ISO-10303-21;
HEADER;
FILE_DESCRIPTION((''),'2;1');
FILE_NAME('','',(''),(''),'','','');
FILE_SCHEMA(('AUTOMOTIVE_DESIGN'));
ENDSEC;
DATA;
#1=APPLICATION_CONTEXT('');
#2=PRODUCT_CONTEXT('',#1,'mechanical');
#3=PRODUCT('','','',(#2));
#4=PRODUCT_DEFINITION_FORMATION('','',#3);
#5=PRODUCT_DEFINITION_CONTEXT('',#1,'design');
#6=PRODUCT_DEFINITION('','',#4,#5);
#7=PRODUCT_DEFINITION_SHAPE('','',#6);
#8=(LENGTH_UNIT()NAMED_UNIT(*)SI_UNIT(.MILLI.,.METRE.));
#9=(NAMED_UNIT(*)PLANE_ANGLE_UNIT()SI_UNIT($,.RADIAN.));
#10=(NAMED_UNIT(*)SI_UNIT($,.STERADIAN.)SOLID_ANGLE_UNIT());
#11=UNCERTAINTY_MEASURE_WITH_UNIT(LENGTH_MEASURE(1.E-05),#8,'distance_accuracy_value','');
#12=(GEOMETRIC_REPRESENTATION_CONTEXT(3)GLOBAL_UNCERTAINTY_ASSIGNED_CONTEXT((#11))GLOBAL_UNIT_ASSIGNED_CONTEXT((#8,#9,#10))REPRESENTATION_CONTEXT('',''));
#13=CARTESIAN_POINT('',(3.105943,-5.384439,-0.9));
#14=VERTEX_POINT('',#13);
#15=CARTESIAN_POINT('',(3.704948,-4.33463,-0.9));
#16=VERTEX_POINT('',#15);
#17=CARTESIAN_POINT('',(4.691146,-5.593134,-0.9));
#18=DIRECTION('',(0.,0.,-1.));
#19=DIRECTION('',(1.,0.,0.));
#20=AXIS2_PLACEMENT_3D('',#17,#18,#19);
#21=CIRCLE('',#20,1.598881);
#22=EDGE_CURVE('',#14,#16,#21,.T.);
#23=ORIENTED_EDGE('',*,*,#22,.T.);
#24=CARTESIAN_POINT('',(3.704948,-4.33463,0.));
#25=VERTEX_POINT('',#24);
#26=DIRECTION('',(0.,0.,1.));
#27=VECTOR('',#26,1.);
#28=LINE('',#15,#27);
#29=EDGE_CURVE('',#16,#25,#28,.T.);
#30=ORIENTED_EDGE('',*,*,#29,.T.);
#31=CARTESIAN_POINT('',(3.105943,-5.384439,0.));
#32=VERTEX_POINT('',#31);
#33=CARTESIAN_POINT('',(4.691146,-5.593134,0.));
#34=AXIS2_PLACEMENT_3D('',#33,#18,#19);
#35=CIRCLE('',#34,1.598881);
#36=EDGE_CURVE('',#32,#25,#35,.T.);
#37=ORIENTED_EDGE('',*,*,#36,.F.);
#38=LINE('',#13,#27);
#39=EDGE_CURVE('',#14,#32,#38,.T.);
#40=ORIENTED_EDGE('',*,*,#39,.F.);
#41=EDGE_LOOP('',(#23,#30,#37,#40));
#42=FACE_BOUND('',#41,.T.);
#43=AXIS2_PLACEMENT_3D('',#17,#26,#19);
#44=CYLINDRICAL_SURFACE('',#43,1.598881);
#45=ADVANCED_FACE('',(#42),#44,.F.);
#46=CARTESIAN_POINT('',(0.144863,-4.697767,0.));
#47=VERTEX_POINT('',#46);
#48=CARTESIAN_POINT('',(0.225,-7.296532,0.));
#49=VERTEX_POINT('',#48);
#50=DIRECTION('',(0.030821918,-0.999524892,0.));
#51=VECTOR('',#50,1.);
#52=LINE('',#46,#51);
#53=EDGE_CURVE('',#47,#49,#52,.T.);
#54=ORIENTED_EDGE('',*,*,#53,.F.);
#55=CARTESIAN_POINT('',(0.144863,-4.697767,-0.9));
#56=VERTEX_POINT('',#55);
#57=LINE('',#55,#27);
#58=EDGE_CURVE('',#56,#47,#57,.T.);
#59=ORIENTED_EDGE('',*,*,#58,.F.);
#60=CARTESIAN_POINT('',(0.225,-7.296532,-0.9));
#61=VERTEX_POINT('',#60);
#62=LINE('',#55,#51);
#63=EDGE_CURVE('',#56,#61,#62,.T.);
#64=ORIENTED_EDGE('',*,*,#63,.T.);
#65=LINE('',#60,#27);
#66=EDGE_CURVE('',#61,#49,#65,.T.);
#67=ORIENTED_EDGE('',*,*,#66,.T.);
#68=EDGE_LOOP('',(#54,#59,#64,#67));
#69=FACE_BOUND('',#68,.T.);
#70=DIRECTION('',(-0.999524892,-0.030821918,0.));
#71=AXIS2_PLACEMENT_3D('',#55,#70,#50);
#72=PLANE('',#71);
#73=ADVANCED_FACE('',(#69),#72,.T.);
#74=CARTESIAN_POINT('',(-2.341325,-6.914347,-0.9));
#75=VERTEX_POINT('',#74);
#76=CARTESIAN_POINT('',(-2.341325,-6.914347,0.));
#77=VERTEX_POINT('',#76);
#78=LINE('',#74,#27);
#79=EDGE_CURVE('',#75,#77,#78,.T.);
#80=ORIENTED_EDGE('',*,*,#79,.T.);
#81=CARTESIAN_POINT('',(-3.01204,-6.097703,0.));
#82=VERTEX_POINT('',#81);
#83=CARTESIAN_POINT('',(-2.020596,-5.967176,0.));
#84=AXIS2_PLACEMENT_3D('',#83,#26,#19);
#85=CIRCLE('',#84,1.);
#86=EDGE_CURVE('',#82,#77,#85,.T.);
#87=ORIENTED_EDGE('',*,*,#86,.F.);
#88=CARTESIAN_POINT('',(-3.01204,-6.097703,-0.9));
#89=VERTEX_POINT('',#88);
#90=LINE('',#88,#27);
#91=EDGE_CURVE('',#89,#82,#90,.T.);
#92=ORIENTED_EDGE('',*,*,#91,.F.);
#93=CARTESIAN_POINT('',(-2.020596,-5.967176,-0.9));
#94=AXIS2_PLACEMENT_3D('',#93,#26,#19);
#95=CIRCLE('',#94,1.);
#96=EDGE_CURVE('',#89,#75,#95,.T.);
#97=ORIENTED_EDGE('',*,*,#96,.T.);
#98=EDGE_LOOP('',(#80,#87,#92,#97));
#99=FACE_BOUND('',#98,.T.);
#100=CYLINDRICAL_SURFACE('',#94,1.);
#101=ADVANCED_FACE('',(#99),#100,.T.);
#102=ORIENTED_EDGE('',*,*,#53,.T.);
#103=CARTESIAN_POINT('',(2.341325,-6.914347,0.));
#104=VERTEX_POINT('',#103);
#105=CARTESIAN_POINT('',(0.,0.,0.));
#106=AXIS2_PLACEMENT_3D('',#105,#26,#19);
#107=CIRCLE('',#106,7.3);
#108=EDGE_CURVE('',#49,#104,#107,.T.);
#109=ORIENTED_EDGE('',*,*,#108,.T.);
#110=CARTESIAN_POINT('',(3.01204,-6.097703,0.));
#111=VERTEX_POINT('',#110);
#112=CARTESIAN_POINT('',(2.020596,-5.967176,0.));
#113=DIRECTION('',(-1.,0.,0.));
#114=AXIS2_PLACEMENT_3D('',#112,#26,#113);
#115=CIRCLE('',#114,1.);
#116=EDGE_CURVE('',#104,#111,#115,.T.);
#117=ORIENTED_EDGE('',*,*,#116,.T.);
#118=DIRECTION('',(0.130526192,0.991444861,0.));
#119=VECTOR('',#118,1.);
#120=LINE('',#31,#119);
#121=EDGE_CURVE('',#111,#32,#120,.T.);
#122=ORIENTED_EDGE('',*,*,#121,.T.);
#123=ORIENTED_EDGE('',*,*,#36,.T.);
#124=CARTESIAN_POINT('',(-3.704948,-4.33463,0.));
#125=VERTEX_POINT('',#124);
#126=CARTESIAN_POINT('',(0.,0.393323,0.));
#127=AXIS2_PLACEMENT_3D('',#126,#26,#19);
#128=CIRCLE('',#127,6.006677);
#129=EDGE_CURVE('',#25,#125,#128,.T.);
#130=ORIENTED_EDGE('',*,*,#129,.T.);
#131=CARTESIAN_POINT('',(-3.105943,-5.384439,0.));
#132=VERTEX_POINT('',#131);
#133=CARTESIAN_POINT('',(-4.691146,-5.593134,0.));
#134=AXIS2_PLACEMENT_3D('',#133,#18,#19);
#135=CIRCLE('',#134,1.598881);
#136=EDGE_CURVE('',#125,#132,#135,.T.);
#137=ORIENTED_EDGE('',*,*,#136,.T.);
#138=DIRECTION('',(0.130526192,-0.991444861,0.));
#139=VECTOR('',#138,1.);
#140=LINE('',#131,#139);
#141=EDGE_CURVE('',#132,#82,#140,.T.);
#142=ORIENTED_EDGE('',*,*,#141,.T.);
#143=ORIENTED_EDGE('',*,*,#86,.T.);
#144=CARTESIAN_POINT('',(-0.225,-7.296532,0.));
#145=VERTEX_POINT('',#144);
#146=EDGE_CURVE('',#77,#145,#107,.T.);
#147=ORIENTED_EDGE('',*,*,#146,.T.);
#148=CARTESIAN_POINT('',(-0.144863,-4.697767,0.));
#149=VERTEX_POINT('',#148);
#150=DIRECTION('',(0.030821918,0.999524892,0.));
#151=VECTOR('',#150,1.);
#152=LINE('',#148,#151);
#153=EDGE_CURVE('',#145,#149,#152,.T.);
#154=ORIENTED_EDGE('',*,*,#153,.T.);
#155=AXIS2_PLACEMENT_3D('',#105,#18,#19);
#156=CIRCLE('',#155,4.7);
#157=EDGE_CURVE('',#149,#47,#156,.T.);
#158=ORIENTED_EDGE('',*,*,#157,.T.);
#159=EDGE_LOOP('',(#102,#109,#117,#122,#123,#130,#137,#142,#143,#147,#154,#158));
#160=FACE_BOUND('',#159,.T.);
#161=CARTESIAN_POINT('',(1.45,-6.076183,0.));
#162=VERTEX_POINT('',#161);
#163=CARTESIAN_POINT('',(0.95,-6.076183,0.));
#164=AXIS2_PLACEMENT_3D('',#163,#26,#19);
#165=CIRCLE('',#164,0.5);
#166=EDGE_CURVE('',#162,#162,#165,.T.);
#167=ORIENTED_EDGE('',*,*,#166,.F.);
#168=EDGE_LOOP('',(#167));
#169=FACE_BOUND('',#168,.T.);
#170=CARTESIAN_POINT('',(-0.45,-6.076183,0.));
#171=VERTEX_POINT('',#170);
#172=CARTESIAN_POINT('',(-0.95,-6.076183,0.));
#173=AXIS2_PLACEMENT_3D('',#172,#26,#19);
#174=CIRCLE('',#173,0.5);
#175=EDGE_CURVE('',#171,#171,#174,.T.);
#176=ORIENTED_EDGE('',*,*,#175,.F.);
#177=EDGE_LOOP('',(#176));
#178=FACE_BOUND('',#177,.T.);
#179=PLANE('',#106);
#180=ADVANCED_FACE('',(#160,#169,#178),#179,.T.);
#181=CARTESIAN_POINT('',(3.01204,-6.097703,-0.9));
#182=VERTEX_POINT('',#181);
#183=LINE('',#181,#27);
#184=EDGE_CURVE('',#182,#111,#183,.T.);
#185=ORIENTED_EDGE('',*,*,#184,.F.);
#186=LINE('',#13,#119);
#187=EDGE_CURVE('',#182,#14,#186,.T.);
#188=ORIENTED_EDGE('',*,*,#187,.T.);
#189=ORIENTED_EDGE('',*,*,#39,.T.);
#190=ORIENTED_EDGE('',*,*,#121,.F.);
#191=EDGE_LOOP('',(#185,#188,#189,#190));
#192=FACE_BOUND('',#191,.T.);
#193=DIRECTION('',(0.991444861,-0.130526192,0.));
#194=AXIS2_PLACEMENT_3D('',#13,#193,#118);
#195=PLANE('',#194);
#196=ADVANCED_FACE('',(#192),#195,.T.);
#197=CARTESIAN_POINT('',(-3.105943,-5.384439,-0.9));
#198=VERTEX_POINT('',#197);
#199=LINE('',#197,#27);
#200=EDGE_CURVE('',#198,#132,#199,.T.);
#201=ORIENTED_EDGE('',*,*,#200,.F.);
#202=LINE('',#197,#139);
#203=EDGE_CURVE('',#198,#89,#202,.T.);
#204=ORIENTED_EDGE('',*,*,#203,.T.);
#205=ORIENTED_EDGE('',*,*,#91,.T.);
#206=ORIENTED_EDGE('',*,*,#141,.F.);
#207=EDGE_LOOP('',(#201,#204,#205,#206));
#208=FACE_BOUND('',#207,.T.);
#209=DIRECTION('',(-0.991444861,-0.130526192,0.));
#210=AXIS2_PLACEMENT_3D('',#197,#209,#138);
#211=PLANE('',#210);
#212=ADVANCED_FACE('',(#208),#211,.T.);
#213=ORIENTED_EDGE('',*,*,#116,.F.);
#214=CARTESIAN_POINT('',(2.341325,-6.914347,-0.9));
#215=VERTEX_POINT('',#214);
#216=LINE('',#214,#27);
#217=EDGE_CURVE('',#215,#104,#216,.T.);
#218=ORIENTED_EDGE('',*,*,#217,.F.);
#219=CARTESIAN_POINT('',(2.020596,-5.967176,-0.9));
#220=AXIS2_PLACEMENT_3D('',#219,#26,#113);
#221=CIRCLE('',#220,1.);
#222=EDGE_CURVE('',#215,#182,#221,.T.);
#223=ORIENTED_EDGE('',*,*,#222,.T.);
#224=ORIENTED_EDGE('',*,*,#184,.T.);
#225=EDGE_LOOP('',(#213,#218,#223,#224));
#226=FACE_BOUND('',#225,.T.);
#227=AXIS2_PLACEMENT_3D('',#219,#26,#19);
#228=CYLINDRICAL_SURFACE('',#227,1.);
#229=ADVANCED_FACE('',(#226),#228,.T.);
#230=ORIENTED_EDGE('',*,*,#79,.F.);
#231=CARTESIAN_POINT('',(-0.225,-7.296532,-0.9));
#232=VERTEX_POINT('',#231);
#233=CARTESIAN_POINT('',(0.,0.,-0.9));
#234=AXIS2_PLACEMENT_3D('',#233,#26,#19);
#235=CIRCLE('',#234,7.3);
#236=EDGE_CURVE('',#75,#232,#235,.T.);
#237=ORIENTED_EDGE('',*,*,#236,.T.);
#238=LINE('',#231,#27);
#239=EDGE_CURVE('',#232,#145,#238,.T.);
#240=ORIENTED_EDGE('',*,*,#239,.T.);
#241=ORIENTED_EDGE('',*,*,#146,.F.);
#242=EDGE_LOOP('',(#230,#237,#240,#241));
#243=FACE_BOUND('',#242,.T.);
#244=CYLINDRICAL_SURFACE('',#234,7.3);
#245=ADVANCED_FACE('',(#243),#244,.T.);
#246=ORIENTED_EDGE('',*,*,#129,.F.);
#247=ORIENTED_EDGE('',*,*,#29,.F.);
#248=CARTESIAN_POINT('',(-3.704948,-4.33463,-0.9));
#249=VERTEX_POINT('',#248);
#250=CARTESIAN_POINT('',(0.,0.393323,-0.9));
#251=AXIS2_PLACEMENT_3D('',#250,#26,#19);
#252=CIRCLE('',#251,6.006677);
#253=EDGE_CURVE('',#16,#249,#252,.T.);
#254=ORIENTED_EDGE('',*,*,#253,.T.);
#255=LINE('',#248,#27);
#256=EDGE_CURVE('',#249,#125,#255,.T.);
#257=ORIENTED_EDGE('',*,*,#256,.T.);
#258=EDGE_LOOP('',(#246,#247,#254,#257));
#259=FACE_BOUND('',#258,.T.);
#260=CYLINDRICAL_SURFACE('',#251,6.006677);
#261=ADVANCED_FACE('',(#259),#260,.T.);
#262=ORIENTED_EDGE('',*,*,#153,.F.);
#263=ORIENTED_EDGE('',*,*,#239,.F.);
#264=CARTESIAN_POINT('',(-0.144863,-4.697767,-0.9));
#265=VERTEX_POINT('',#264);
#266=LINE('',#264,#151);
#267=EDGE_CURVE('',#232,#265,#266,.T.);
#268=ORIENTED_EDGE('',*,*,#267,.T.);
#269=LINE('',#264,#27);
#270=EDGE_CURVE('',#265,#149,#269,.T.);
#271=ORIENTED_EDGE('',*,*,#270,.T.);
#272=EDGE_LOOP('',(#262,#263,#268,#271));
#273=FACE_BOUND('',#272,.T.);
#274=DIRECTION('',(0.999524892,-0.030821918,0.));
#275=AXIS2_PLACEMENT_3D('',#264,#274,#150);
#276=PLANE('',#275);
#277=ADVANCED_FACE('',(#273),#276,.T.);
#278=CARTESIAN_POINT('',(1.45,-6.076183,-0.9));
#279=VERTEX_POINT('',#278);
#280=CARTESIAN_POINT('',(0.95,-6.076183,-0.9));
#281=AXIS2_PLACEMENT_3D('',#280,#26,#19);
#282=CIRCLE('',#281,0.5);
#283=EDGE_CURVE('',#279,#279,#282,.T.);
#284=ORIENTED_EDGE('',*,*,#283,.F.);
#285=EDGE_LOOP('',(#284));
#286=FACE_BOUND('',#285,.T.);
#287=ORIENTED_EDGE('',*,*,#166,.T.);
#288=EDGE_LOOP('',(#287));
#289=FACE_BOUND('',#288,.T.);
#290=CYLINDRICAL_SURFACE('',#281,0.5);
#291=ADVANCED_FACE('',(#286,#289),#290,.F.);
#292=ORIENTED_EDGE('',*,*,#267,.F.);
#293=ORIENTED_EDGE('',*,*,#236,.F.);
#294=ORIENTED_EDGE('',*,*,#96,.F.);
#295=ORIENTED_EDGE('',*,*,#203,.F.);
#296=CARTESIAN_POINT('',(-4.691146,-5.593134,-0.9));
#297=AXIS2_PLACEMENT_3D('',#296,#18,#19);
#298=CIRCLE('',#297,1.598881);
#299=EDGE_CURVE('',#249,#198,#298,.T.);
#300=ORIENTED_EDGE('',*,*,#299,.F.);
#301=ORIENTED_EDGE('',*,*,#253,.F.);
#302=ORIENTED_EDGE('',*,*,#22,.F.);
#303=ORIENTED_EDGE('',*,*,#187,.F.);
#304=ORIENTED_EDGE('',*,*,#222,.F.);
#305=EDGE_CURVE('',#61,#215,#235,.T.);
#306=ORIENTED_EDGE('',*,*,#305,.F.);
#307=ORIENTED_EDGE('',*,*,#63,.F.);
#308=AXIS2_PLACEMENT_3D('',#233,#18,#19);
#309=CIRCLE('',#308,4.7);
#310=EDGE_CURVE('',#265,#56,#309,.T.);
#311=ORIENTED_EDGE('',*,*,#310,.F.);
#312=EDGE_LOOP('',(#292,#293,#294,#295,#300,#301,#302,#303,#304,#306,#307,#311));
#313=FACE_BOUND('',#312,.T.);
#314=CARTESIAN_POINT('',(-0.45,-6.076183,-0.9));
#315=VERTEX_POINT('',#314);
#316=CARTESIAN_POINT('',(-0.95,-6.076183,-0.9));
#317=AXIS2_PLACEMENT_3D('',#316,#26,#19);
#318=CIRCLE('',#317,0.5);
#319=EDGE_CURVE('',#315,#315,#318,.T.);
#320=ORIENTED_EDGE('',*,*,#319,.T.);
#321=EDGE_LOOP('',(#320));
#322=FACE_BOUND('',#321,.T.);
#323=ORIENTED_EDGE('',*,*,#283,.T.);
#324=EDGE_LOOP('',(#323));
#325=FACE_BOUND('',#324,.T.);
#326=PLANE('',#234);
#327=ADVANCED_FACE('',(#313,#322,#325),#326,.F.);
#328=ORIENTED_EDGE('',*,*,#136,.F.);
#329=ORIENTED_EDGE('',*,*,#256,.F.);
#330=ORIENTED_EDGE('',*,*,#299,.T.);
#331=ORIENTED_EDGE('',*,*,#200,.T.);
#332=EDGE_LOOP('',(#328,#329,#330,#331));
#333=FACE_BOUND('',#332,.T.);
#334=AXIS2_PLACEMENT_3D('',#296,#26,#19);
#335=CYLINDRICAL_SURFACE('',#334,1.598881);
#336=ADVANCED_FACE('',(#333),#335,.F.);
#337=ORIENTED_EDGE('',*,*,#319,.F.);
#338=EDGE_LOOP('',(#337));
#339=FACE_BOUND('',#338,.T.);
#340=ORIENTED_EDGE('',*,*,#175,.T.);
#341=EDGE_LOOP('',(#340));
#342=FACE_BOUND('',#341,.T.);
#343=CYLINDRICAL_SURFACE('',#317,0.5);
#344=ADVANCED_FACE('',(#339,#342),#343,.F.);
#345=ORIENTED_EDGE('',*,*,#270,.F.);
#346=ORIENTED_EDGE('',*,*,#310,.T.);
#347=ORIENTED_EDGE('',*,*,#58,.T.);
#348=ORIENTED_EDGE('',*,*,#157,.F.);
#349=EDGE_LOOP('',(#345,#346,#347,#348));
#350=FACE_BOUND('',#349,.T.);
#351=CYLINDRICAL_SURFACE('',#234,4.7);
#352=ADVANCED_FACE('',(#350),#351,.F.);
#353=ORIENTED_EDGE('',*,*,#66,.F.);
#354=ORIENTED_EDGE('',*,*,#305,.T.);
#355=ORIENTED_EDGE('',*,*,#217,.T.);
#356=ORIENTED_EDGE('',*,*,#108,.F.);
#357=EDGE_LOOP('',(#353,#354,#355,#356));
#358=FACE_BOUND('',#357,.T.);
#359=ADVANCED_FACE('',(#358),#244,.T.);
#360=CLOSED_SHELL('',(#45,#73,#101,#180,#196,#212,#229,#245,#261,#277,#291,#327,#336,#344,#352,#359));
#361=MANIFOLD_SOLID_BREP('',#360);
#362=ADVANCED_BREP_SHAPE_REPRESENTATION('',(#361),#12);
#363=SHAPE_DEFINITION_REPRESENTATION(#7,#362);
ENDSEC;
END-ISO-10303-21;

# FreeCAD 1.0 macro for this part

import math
import FreeCAD as App
import Part
import Sketcher

V = App.Vector
Q = App.Units.Quantity

doc = App.newDocument("Part")
body = doc.addObject("PartDesign::Body", "Body")

# Sketch on XY plane
sketch1 = body.newObject("Sketcher::SketchObject", "Sketch")
sketch1.AttachmentSupport = (doc.getObject("XY_Plane"), [""])
sketch1.MapMode = "FlatFace"
sketch1.addGeometry(Part.LineSegment(V(0.14, -4.7, 0), V(0.23, -7.3, 0)), False)
sketch1.addGeometry(Part.ArcOfCircle(Part.Circle(V(0, 0, 0), V(0, 0, 1), 7.3), math.radians(-88.23), math.radians(-71.29)), False)
sketch1.addGeometry(Part.ArcOfCircle(Part.Circle(V(2.02, -5.97, 0), V(0, 0, 1), 1), math.radians(-71), math.radians(-8)), False)
sketch1.addGeometry(Part.LineSegment(V(3.01, -6.1, 0), V(3.11, -5.38, 0)), False)
sketch1.addGeometry(Part.ArcOfCircle(Part.Circle(V(4.69, -5.59, 0), V(0, 0, 1), 1.6), math.radians(128), math.radians(173)), False)
sketch1.addGeometry(Part.ArcOfCircle(Part.Circle(V(0, 0.39, 0), V(0, 0, 1), 6.01), math.radians(-52), math.radians(232)), False)
sketch1.addGeometry(Part.ArcOfCircle(Part.Circle(V(-4.69, -5.59, 0), V(0, 0, 1), 1.6), math.radians(7), math.radians(52)), False)
sketch1.addGeometry(Part.LineSegment(V(-3.11, -5.38, 0), V(-3.01, -6.1, 0)), False)
sketch1.addGeometry(Part.ArcOfCircle(Part.Circle(V(-2.02, -5.97, 0), V(0, 0, 1), 1), math.radians(-172), math.radians(-109)), False)
sketch1.addGeometry(Part.ArcOfCircle(Part.Circle(V(0, 0, 0), V(0, 0, 1), 7.3), math.radians(-108.71), math.radians(-91.77)), False)
sketch1.addGeometry(Part.LineSegment(V(-0.23, -7.3, 0), V(-0.14, -4.7, 0)), False)
sketch1.addGeometry(Part.ArcOfCircle(Part.Circle(V(0, 0, 0), V(0, 0, 1), 4.7), math.radians(-88), math.radians(268)), False)
sketch1.addGeometry(Part.Circle(V(-0.95, -6.08, 0), V(0, 0, 1), 0.5), False)
sketch1.addGeometry(Part.Circle(V(0.95, -6.08, 0), V(0, 0, 1), 0.5), False)
sketch1.addConstraint(Sketcher.Constraint("Coincident", 0, 2, 1, 1))
sketch1.addConstraint(Sketcher.Constraint("Tangent", 1, 2, 2, 1))
sketch1.addConstraint(Sketcher.Constraint("Tangent", 2, 2, 3, 1))
sketch1.addConstraint(Sketcher.Constraint("Tangent", 3, 2, 4, 2))
sketch1.addConstraint(Sketcher.Constraint("Tangent", 4, 1, 5, 1))
sketch1.addConstraint(Sketcher.Constraint("Tangent", 5, 2, 6, 2))
sketch1.addConstraint(Sketcher.Constraint("Tangent", 6, 1, 7, 1))
sketch1.addConstraint(Sketcher.Constraint("Tangent", 7, 2, 8, 1))
sketch1.addConstraint(Sketcher.Constraint("Tangent", 8, 2, 9, 1))
sketch1.addConstraint(Sketcher.Constraint("Coincident", 9, 2, 10, 1))
sketch1.addConstraint(Sketcher.Constraint("Coincident", 10, 2, 11, 2))
sketch1.addConstraint(Sketcher.Constraint("Coincident", 11, 1, 0, 1))
sketch1.addConstraint(Sketcher.Constraint("Coincident", 1, 3, -1, 1))
sketch1.addConstraint(Sketcher.Constraint("Coincident", 9, 3, -1, 1))
sketch1.addConstraint(Sketcher.Constraint("Coincident", 11, 3, -1, 1))
sketch1.addConstraint(Sketcher.Constraint("Equal", 4, 6))
sketch1.addConstraint(Sketcher.Constraint("Equal", 2, 8))
sketch1.addConstraint(Sketcher.Constraint("Equal", 1, 9))
sketch1.addConstraint(Sketcher.Constraint("Equal", 12, 13))
sketch1.addConstraint(Sketcher.Constraint("Symmetric", 4, 3, 6, 3, -2))
sketch1.addConstraint(Sketcher.Constraint("Symmetric", 12, 3, 13, 3, -2))
sketch1.addConstraint(Sketcher.Constraint("Horizontal", 2, 3, 8, 3))
sketch1.addConstraint(Sketcher.Constraint("Horizontal", 0, 2, 9, 2))
sketch1.addConstraint(Sketcher.Constraint("Horizontal", 10, 2, 11, 1))
sketch1.addConstraint(Sketcher.Constraint("Diameter", 12, 1.0))
sketch1.addConstraint(Sketcher.Constraint("Radius", 2, 1.0))
sketch1.addConstraint(Sketcher.Constraint("Radius", 1, 7.3))
sketch1.addConstraint(Sketcher.Constraint("Radius", 11, 4.7))
sketch1.addConstraint(Sketcher.Constraint("Angle", 3, Q("82.5 deg")))
sketch1.addConstraint(Sketcher.Constraint("DistanceX", 12, 3, 13, 3, 1.9))
sketch1.addConstraint(Sketcher.Constraint("Radius", 4, 1.598881))
sketch1.addConstraint(Sketcher.Constraint("DistanceX", 9, 2, 0, 2, 0.45))
sketch1.addConstraint(Sketcher.Constraint("Radius", 5, 6.006677))
sketch1.addConstraint(Sketcher.Constraint("DistanceY", 2, 3, 5, 3, 6.360499))
sketch1.addConstraint(Sketcher.Constraint("Distance", 3, 0.719419))
sketch1.addConstraint(Sketcher.Constraint("DistanceY", 12, 3, 6, 3, 0.483049))
sketch1.addConstraint(Sketcher.Constraint("DistanceY", 8, 3, 10, 2, 1.269409))
pad1 = body.newObject("PartDesign::Pad", "Pad")
pad1.Profile = sketch1
pad1.Length = 0.9
pad1.Reversed = True

doc.recompute()
